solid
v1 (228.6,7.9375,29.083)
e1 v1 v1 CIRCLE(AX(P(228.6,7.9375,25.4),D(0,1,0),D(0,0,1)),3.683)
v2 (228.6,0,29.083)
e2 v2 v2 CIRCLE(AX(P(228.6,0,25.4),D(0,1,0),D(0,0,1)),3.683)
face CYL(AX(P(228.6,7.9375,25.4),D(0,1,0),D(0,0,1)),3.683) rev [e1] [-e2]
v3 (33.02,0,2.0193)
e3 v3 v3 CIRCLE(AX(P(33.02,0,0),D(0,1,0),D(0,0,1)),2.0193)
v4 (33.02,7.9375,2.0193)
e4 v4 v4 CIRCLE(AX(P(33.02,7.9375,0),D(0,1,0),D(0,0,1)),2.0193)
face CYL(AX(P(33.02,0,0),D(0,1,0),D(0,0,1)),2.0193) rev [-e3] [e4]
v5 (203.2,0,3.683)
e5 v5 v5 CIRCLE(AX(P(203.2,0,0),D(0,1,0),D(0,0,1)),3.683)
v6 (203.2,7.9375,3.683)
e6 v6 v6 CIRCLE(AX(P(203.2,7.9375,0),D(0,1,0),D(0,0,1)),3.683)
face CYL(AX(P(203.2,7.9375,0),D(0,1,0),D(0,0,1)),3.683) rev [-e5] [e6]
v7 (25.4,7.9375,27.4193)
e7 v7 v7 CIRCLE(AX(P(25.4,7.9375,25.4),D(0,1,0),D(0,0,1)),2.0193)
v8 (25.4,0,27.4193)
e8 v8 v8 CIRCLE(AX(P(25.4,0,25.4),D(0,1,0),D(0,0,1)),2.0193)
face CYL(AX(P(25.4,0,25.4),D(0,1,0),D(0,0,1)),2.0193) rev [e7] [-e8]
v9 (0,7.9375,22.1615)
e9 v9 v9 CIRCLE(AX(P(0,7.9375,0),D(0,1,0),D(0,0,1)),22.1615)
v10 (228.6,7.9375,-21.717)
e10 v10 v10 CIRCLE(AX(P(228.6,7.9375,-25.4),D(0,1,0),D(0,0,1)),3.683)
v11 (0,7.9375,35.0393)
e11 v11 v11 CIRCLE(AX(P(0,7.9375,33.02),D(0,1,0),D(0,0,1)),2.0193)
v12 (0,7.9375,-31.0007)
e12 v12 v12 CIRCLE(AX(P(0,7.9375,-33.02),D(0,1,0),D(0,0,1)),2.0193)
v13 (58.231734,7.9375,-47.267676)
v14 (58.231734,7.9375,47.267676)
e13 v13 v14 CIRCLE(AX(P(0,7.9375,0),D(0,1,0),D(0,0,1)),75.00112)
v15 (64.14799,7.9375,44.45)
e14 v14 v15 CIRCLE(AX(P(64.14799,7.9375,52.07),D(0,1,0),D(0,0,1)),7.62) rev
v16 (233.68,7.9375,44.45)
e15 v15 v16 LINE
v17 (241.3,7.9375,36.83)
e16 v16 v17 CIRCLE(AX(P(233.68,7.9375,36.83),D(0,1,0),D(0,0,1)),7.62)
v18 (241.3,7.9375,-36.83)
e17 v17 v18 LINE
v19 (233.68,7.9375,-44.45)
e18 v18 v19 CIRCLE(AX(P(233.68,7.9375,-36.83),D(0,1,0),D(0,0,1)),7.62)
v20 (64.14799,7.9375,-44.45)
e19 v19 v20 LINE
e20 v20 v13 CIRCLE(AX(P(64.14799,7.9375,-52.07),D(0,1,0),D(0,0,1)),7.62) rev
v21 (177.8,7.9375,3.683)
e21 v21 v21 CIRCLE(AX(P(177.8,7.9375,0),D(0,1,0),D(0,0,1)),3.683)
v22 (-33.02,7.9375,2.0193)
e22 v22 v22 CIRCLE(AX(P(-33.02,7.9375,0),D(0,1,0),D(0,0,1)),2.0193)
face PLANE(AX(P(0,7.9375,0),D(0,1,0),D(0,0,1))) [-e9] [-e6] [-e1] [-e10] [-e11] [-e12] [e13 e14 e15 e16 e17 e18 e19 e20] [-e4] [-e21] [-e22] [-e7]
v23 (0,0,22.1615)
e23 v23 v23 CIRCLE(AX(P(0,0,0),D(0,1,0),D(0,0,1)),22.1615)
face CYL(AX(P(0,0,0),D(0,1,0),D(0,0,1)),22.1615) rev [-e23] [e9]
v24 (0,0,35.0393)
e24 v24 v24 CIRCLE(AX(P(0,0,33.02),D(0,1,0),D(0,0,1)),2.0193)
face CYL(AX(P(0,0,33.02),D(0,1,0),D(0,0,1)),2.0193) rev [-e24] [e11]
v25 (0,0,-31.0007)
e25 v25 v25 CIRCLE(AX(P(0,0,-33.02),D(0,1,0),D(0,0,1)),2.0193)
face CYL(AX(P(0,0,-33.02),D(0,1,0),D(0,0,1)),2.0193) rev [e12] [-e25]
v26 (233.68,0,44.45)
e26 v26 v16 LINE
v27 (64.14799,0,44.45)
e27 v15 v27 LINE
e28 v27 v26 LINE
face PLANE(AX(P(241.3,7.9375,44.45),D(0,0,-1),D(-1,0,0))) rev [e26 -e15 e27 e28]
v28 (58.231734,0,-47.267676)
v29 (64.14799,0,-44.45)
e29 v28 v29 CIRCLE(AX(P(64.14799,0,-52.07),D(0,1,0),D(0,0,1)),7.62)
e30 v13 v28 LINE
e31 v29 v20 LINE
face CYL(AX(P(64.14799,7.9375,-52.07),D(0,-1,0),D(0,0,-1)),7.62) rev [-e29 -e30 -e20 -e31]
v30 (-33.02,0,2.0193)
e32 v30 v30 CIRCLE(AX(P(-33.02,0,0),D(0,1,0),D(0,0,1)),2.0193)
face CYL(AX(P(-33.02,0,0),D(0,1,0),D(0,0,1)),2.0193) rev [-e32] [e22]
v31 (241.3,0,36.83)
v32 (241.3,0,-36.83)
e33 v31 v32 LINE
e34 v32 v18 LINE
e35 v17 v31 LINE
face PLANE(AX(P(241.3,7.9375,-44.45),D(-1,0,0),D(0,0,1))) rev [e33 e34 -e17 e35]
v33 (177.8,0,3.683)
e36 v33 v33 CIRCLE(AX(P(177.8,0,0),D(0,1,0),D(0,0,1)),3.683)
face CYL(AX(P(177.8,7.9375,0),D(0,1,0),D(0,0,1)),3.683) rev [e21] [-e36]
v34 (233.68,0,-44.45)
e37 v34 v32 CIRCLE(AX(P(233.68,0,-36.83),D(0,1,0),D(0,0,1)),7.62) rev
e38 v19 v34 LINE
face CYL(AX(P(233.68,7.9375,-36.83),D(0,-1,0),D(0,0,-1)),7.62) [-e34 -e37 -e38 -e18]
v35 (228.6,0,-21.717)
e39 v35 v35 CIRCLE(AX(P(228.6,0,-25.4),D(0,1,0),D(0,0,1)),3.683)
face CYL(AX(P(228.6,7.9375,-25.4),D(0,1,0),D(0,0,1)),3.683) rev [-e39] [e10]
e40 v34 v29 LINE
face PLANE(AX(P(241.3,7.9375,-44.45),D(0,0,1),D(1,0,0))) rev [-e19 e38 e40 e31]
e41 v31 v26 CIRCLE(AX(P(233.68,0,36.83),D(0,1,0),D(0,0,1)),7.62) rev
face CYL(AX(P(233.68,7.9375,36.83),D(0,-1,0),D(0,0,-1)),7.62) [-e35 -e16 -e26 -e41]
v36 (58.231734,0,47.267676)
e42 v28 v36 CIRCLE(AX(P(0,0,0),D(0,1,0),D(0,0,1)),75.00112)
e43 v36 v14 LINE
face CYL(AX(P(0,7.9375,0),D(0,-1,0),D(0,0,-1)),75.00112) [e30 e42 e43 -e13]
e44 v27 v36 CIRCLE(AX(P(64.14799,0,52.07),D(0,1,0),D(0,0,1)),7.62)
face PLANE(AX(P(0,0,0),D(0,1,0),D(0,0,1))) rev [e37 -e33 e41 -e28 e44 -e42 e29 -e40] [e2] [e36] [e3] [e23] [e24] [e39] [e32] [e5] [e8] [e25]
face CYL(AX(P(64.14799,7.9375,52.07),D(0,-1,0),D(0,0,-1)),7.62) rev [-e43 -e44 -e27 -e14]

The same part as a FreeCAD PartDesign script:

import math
import FreeCAD as App
import Part
import Sketcher
from FreeCAD import Vector
Q = App.Units.Quantity


def edges_at(feature, points):
    """Names of the edges that pass closest to the given points."""
    edges = feature.Shape.Edges
    near = lambda p: min(range(len(edges)), key=lambda i: edges[i].distToShape(Part.Vertex(*p))[0])
    return sorted({f"Edge{near(p) + 1}" for p in points})

doc = App.newDocument("Part")
params = doc.addObject("Spreadsheet::Sheet", "Params")
for row, (alias, value) in enumerate([
    ("sketch1_height", "3.5 in"),
    ("pad1_length", "0.3125 in"),
    ("sketch2_diameter", "1.745 in"),
    ("sketch2_diameter2", "0.159 in"),
    ("fillet_radius", "0.3 in"),
    ("sketch3_diameter", "0.29 in"),
    ("hole_diameter", "0.29 in"),
], start=1):
    params.set(f"A{row}", alias)
    params.set(f"B{row}", "=" + value)
    params.setAlias(f"B{row}", alias)

body = doc.addObject("PartDesign::Body", "Body")

# Sketch on XZ plane
sketch1 = doc.addObject("Sketcher::SketchObject", "Sketch")
body.addObject(sketch1)
sketch1.AttachmentSupport = (doc.XZ_Plane, [""])
sketch1.MapMode = "FlatFace"
sketch1.addGeometry([
    Part.LineSegment(Vector(60, 44, 0), Vector(241, 44, 0)),
    Part.LineSegment(Vector(241, 44, 0), Vector(241, -44, 0)),
    Part.LineSegment(Vector(241, -44, 0), Vector(60, -44, 0)),
    Part.ArcOfCircle(Part.Circle(Vector(0, 0, 0), Vector(0, 0, 1), 75), math.radians(36), math.radians(324)),
], False)
sketch1.addConstraint([
    Sketcher.Constraint("Coincident", 0, 2, 1, 1),
    Sketcher.Constraint("Coincident", 1, 2, 2, 1),
    Sketcher.Constraint("Coincident", 2, 2, 3, 2),
    Sketcher.Constraint("Coincident", 3, 1, 0, 1),
    Sketcher.Constraint("Horizontal", 0),
    Sketcher.Constraint("Vertical", 1),
    Sketcher.Constraint("Horizontal", 2),
    Sketcher.Constraint("Coincident", 3, 3, -1, 1),
    Sketcher.Constraint("Vertical", 2, 2, 3, 1),
    Sketcher.Constraint("DistanceY", 1, 2, 1, 1, Q("3.5 in")),
    Sketcher.Constraint("DistanceX", -1, 1, 0, 2, Q("9.5 in")),
    Sketcher.Constraint("Radius", 3, Q("2.9528 in")),
])
sketch1.setExpression("Constraints[9]", "Params.sketch1_height")
pad1 = doc.addObject("PartDesign::Pad", "Pad")
body.addObject(pad1)
pad1.Profile = sketch1
pad1.setExpression("Length", "Params.pad1_length")
pad1.Reversed = True

# Sketch on XZ plane
sketch2 = doc.addObject("Sketcher::SketchObject", "Sketch001")
body.addObject(sketch2)
sketch2.AttachmentSupport = (doc.XZ_Plane, [""])
sketch2.MapMode = "FlatFace"
sketch2.AttachmentOffset = App.Placement(Vector(0, 0, -0.3125 * 25.4), App.Rotation())
sketch2.addGeometry([
    Part.Circle(Vector(0, 0, 0), Vector(0, 0, 1), 22.2),  # 0
    Part.Circle(Vector(0, -33, 0), Vector(0, 0, 1), 2),  # 1
    Part.Circle(Vector(-33, 0, 0), Vector(0, 0, 1), 2),  # 2
    Part.Circle(Vector(0, 33, 0), Vector(0, 0, 1), 2),  # 3
    Part.Circle(Vector(33, 0, 0), Vector(0, 0, 1), 2),  # 4
    Part.Circle(Vector(25.4, 25.4, 0), Vector(0, 0, 1), 2),  # 5
], False)
sketch2.addConstraint([
    Sketcher.Constraint("Coincident", 0, 3, -1, 1),
    Sketcher.Constraint("Equal", 1, 2),
    Sketcher.Constraint("Equal", 2, 3),
    Sketcher.Constraint("Equal", 3, 4),
    Sketcher.Constraint("Equal", 4, 5),
    Sketcher.Constraint("Symmetric", 1, 3, 3, 3, -1, 1),
    Sketcher.Constraint("Symmetric", 2, 3, 4, 3, -1, 1),
    Sketcher.Constraint("PointOnObject", 1, 3, -2),
    Sketcher.Constraint("PointOnObject", 2, 3, -1),
    Sketcher.Constraint("Diameter", 0, Q("1.745 in")),
    Sketcher.Constraint("Diameter", 1, Q("0.159 in")),
    Sketcher.Constraint("DistanceX", -1, 1, 5, 3, Q("1 in")),
    Sketcher.Constraint("DistanceY", -1, 1, 5, 3, Q("1 in")),
    Sketcher.Constraint("DistanceY", 1, 3, -1, 1, Q("1.3 in")),
    Sketcher.Constraint("DistanceX", 2, 3, -1, 1, Q("1.3 in")),
])
sketch2.setExpression("Constraints[9]", "Params.sketch2_diameter")
sketch2.setExpression("Constraints[10]", "Params.sketch2_diameter2")
pocket1 = doc.addObject("PartDesign::Pocket", "Pocket")
body.addObject(pocket1)
pocket1.Profile = sketch2
pocket1.Type = "ThroughAll"
pocket1.Reversed = True
doc.recompute()

fillet = doc.addObject("PartDesign::Fillet", "Fillet")
body.addObject(fillet)
fillet.Base = (pocket1, edges_at(pocket1, [
    (60.41, 3.969, -44.45),
    (241.3, 3.969, -44.45),
    (241.3, 3.969, 44.45),
    (60.41, 3.969, 44.45),
]))
fillet.setExpression("Radius", "Params.fillet_radius")

# Sketch on XZ plane
sketch3 = doc.addObject("Sketcher::SketchObject", "Sketch002")
body.addObject(sketch3)
sketch3.AttachmentSupport = (doc.XZ_Plane, [""])
sketch3.MapMode = "FlatFace"
sketch3.AttachmentOffset = App.Placement(Vector(0, 0, -0.3125 * 25.4), App.Rotation())
sketch3.addGeometry([
    Part.Circle(Vector(228.6, -25.4, 0), Vector(0, 0, 1), 3.7),
    Part.Circle(Vector(228.6, 25.4, 0), Vector(0, 0, 1), 3.7),
    Part.Circle(Vector(203.2, 0, 0), Vector(0, 0, 1), 3.7),
    Part.Circle(Vector(177.8, 0, 0), Vector(0, 0, 1), 3.7),
], False)
sketch3.addConstraint([
    Sketcher.Constraint("Equal", 0, 1),
    Sketcher.Constraint("Equal", 1, 2),
    Sketcher.Constraint("Equal", 2, 3),
    Sketcher.Constraint("Symmetric", 0, 3, 1, 3, -1),
    Sketcher.Constraint("PointOnObject", 2, 3, -1),
    Sketcher.Constraint("PointOnObject", 3, 3, -1),
    Sketcher.Constraint("Diameter", 0, Q("0.29 in")),
    Sketcher.Constraint("DistanceX", -1, 1, 0, 3, Q("9 in")),
    Sketcher.Constraint("DistanceY", 0, 3, -1, 1, Q("1 in")),
    Sketcher.Constraint("DistanceX", -1, 1, 2, 3, Q("8 in")),
    Sketcher.Constraint("DistanceX", -1, 1, 3, 3, Q("7 in")),
])
sketch3.setExpression("Constraints[6]", "Params.sketch3_diameter")
doc.recompute()
hole = doc.addObject("PartDesign::Hole", "Hole")
body.addObject(hole)
hole.Profile = sketch3
hole.ThreadType = "None"
hole.setExpression("Diameter", "Params.hole_diameter")
hole.DepthType = "ThroughAll"
hole.Reversed = True

doc.recompute()
